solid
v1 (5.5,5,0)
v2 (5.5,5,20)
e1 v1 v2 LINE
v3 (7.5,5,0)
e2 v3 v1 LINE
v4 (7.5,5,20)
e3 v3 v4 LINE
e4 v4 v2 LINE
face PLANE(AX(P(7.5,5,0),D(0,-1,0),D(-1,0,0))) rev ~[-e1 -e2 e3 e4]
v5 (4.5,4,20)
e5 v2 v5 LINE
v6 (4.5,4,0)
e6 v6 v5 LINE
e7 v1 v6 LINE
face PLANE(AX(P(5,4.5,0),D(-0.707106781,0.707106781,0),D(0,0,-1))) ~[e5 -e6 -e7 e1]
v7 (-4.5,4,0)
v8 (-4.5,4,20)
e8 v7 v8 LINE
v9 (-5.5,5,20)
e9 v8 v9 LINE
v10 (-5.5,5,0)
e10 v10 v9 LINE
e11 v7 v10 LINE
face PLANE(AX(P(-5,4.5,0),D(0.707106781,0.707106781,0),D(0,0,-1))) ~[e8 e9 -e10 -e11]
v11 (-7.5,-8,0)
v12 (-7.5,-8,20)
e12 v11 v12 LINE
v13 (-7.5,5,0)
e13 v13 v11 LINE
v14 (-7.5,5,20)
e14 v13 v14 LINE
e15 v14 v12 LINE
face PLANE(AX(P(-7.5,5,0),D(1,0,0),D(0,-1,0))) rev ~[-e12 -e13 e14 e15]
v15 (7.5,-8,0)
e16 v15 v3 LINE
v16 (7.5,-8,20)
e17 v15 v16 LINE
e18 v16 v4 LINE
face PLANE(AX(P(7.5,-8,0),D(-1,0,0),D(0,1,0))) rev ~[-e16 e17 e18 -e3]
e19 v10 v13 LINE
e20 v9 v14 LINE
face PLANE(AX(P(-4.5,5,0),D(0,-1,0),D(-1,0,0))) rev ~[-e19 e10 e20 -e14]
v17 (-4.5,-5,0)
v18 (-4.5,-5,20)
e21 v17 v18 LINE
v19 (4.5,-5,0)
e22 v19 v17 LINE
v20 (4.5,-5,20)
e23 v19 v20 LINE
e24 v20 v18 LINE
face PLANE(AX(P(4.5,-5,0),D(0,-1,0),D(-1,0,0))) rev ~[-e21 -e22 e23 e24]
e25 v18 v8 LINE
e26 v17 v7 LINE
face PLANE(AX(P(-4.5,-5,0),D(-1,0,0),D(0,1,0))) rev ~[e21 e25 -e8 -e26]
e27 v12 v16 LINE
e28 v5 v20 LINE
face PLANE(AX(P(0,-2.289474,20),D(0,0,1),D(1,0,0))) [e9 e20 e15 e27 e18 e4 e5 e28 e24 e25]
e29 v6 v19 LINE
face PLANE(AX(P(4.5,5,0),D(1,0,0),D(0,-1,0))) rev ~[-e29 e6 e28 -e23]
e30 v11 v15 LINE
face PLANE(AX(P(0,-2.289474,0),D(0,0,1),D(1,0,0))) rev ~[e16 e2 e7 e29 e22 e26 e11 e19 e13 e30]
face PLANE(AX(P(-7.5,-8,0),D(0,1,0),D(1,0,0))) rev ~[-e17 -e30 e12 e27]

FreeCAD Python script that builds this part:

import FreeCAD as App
import Part
import Sketcher
from FreeCAD import Vector
Q = App.Units.Quantity


def edges_at(feature, points):
    """Names of the edges that pass closest to the given points."""
    edges = feature.Shape.Edges
    near = lambda p: min(range(len(edges)), key=lambda i: edges[i].distToShape(Part.Vertex(*p))[0])
    return sorted({f"Edge{near(p) + 1}" for p in points})

doc = App.newDocument("Part")
body = doc.addObject("PartDesign::Body", "Body")

sketch1 = body.newObject("Sketcher::SketchObject", "Sketch")
sketch1.AttachmentSupport = (doc.getObject("XY_Plane"), [""])
sketch1.MapMode = "FlatFace"
sketch1.addGeometry(Part.LineSegment(Vector(-7.5, 5, 0), Vector(-7.5, -8, 0)), False)
sketch1.addGeometry(Part.LineSegment(Vector(-7.5, -8, 0), Vector(7.5, -8, 0)), False)
sketch1.addGeometry(Part.LineSegment(Vector(7.5, -8, 0), Vector(7.5, 5, 0)), False)
sketch1.addGeometry(Part.LineSegment(Vector(7.5, 5, 0), Vector(4.5, 5, 0)), False)
sketch1.addGeometry(Part.LineSegment(Vector(4.5, 5, 0), Vector(4.5, -5, 0)), False)
sketch1.addGeometry(Part.LineSegment(Vector(4.5, -5, 0), Vector(-4.5, -5, 0)), False)
sketch1.addGeometry(Part.LineSegment(Vector(-4.5, -5, 0), Vector(-4.5, 5, 0)), False)
sketch1.addGeometry(Part.LineSegment(Vector(-4.5, 5, 0), Vector(-7.5, 5, 0)), False)
sketch1.addConstraint(Sketcher.Constraint("Coincident", 0, 2, 1, 1))
sketch1.addConstraint(Sketcher.Constraint("Coincident", 1, 2, 2, 1))
sketch1.addConstraint(Sketcher.Constraint("Coincident", 2, 2, 3, 1))
sketch1.addConstraint(Sketcher.Constraint("Coincident", 3, 2, 4, 1))
sketch1.addConstraint(Sketcher.Constraint("Coincident", 4, 2, 5, 1))
sketch1.addConstraint(Sketcher.Constraint("Coincident", 5, 2, 6, 1))
sketch1.addConstraint(Sketcher.Constraint("Coincident", 6, 2, 7, 1))
sketch1.addConstraint(Sketcher.Constraint("Coincident", 7, 2, 0, 1))
sketch1.addConstraint(Sketcher.Constraint("Vertical", 0))
sketch1.addConstraint(Sketcher.Constraint("Horizontal", 1))
sketch1.addConstraint(Sketcher.Constraint("Vertical", 2))
sketch1.addConstraint(Sketcher.Constraint("Horizontal", 3))
sketch1.addConstraint(Sketcher.Constraint("Vertical", 4))
sketch1.addConstraint(Sketcher.Constraint("Horizontal", 5))
sketch1.addConstraint(Sketcher.Constraint("Vertical", 6))
sketch1.addConstraint(Sketcher.Constraint("Horizontal", 7))
sketch1.addConstraint(Sketcher.Constraint("Symmetric", 3, 2, 5, 2, -1, 1))
sketch1.addConstraint(Sketcher.Constraint("Symmetric", 2, 2, 7, 2, -2))
sketch1.addConstraint(Sketcher.Constraint("DistanceX", 1, 1, 1, 2, Q("15 mm")))
sketch1.addConstraint(Sketcher.Constraint("DistanceX", 3, 2, 3, 1, Q("3 mm")))
sketch1.addConstraint(Sketcher.Constraint("DistanceY", 0, 2, 0, 1, Q("13 mm")))
sketch1.addConstraint(Sketcher.Constraint("DistanceY", 4, 2, 4, 1, Q("10 mm")))
pad1 = body.newObject("PartDesign::Pad", "Pad")
pad1.Profile = sketch1
pad1.Length = 20
doc.recompute()

chamfer = body.newObject("PartDesign::Chamfer", "Chamfer")
chamfer.Base = (pad1, edges_at(pad1, [(-4.5, 5, 10), (4.5, 5, 10)]))
chamfer.Size = 1

doc.recompute()
